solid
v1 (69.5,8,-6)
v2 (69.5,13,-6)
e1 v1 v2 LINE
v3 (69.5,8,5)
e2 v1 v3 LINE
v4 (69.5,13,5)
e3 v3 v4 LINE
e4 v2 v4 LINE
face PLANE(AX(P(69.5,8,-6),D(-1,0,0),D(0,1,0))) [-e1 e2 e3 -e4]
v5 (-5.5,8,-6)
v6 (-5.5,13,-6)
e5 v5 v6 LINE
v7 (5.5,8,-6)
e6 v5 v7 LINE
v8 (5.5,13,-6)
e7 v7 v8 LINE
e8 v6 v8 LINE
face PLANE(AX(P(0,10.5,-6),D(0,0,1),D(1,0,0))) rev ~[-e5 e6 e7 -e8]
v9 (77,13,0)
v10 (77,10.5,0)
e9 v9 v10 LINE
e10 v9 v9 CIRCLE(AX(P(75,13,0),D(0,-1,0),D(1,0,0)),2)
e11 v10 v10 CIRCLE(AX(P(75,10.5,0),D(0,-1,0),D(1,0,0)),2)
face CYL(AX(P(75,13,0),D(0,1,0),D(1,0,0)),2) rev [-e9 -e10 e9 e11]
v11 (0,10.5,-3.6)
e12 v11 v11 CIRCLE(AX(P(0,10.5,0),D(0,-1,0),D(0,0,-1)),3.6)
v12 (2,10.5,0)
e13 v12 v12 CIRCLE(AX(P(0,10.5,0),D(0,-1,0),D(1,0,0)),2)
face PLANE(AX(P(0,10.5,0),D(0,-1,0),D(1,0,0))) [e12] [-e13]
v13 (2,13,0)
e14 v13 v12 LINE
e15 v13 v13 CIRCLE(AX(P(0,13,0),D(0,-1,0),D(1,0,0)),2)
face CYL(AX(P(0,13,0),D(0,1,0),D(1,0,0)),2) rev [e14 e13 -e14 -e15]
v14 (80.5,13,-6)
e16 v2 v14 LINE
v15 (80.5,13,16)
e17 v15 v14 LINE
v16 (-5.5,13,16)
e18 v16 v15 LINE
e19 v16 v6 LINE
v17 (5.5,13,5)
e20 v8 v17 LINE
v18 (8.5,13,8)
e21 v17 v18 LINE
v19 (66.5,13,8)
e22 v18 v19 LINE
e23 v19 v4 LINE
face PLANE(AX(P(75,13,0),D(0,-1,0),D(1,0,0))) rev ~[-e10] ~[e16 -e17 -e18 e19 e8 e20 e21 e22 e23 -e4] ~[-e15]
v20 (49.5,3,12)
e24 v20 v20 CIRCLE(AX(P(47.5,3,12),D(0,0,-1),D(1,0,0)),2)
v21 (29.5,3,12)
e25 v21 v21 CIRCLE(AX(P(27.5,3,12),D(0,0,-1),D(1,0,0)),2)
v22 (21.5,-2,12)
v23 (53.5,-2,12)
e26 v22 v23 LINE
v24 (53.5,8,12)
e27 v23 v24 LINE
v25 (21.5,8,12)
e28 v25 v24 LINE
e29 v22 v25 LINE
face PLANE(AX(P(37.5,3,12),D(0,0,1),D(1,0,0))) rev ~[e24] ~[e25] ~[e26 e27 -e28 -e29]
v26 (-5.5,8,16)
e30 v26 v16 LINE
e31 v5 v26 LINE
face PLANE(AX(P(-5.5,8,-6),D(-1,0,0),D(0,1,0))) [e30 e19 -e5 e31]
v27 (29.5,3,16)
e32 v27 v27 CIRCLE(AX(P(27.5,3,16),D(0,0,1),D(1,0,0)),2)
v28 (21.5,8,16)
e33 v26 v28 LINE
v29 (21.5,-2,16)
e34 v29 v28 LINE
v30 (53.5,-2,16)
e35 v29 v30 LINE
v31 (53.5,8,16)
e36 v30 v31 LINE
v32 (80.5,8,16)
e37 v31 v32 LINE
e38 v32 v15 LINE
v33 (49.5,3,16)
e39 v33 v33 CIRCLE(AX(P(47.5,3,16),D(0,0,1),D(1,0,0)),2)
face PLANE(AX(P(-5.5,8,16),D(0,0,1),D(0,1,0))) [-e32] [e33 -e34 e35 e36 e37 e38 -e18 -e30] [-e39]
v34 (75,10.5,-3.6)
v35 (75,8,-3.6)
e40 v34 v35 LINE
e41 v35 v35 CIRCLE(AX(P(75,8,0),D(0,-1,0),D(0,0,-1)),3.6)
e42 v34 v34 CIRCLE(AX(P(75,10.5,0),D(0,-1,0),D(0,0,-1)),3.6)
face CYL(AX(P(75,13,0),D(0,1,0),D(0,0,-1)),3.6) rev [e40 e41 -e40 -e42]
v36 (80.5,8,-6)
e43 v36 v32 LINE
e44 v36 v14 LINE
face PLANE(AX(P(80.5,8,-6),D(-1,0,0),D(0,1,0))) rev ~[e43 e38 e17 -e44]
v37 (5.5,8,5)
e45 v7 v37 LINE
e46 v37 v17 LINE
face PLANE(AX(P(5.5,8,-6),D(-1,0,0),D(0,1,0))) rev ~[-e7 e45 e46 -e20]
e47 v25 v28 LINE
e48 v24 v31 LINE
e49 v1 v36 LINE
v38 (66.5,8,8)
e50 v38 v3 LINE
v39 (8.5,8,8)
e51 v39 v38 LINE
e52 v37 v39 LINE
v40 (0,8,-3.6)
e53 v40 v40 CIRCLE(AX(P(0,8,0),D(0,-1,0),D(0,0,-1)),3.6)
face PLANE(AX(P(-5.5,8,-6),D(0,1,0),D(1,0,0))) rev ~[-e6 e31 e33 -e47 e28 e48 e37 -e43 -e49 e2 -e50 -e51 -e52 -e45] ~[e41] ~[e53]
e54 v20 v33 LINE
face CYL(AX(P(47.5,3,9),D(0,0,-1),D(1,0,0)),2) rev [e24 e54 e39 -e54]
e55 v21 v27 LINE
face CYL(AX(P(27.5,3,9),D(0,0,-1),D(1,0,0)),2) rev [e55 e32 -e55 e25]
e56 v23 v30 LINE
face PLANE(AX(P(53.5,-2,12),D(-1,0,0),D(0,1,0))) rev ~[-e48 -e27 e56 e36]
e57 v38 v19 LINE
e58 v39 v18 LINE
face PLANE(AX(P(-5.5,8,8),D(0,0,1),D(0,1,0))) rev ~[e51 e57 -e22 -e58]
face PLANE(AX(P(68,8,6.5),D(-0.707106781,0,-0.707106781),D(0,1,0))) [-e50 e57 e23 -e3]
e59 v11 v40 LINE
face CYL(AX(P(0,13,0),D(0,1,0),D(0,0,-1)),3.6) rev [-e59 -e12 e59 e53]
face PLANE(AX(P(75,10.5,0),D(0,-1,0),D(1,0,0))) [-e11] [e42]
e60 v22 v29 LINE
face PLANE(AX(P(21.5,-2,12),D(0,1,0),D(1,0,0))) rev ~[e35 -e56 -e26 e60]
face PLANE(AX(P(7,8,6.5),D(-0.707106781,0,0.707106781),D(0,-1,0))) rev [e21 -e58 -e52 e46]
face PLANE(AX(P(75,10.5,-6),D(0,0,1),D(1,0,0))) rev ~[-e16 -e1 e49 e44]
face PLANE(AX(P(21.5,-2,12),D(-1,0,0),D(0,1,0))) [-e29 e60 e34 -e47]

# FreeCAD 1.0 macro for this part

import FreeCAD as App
import Part
import Sketcher
Q = App.Units.Quantity


def edges_at(feature, points):
    """Names of the edges that pass closest to the given points."""
    edges = feature.Shape.Edges
    near = lambda p: min(range(len(edges)), key=lambda i: edges[i].distToShape(Part.Vertex(*p))[0])
    return sorted({f"Edge{near(p) + 1}" for p in points})


def add_polygon(sketch, points):
    """Adds a closed chain of lines whose ends are joined by coincident constraints."""
    first, n = sketch.GeometryCount, len(points)
    for a, b in zip(points, points[1:] + points[:1]):
        sketch.addGeometry(Part.LineSegment(App.Vector(*a, 0), App.Vector(*b, 0)), False)
    for i in range(n):
        sketch.addConstraint(Sketcher.Constraint("Coincident", first + i, 2, first + (i + 1) % n, 1))

doc = App.newDocument("Part")
params = doc.addObject("Spreadsheet::Sheet", "Params")
for row, (alias, value) in enumerate([
    ("sketch1_width", "5 mm"),
    ("sketch1_height", "8 mm"),
    ("pad1_length", "86 mm"),
    ("sketch2_diameter", "7.2 mm"),
    ("pad2_length", "5 mm"),
    ("sketch3_width", "11 mm"),
    ("sketch3_height", "5 mm"),
    ("pad3_length", "14 mm"),
    ("sketch4_diameter", "7.2 mm"),
    ("pad4_length", "5 mm"),
    ("sketch5_width", "11 mm"),
    ("sketch5_height", "5 mm"),
    ("pad5_length", "14 mm"),
    ("sketch6_diameter", "4 mm"),
    ("sketch6_diameter2", "7.2 mm"),
    ("pad6_length", "2.5 mm"),
    ("sketch7_diameter", "4 mm"),
    ("sketch7_diameter2", "7.2 mm"),
    ("pad7_length", "2.5 mm"),
    ("sketch8_diameter", "4 mm"),
    ("pad8_length", "7 mm"),
    ("sketch9_diameter", "4 mm"),
    ("pad9_length", "7 mm"),
    ("sketch10_width", "32 mm"),
    ("sketch10_height", "10 mm"),
    ("pad10_length", "4 mm"),
    ("chamfer_size", "3 mm"),
], start=1):
    params.set(f"A{row}", alias)
    params.set(f"B{row}", "=" + value)
    params.setAlias(f"B{row}", alias)

body = doc.addObject("PartDesign::Body", "Body")

# Sketch on YZ plane
sketch1 = body.newObject("Sketcher::SketchObject", "Sketch")
sketch1.AttachmentSupport = (doc.getObject("YZ_Plane"), [""])
sketch1.MapMode = "FlatFace"
sketch1.AttachmentOffset = App.Placement(App.Vector(0, 0, -5.5), App.Rotation())
add_polygon(sketch1, [(8, 16), (8, 8), (13, 8), (13, 16)])  # lines 0-3
sketch1.addConstraint([
    Sketcher.Constraint("Vertical", 0),
    Sketcher.Constraint("Horizontal", 1),
    Sketcher.Constraint("Vertical", 2),
    Sketcher.Constraint("Horizontal", 3),
    Sketcher.Constraint("DistanceX", 1, 1, 1, 2, Q("5 mm")),
    Sketcher.Constraint("DistanceY", 0, 2, 0, 1, Q("8 mm")),
    Sketcher.Constraint("DistanceX", -1, 1, 0, 2, Q("8 mm")),
    Sketcher.Constraint("DistanceY", -1, 1, 0, 2, Q("8 mm")),
])
sketch1.setExpression("Constraints[8]", "Params.sketch1_width")
sketch1.setExpression("Constraints[9]", "Params.sketch1_height")
pad1 = body.newObject("PartDesign::Pad", "Pad")
pad1.Profile = sketch1
pad1.setExpression("Length", "Params.pad1_length")
body2 = doc.addObject("PartDesign::Body", "Body001")

# Sketch on XZ plane
sketch2 = body2.newObject("Sketcher::SketchObject", "Sketch001")
sketch2.AttachmentSupport = (doc.getObject("XZ_Plane001"), [""])
sketch2.MapMode = "FlatFace"
sketch2.AttachmentOffset = App.Placement(App.Vector(0, 0, 73), App.Rotation())
sketch2.addGeometry(Part.Circle(App.Vector(75, 0, 0), App.Vector(0, 0, 1), 3.6), False)
sketch2.addConstraint([
    Sketcher.Constraint("PointOnObject", 0, 3, -1),
    Sketcher.Constraint("Diameter", 0, Q("7.2 mm")),
    Sketcher.Constraint("DistanceX", -1, 1, 0, 3, Q("75 mm")),
])
sketch2.setExpression("Constraints[1]", "Params.sketch2_diameter")
pad2 = body2.newObject("PartDesign::Pad", "Pad001")
pad2.Profile = sketch2
pad2.setExpression("Length", "Params.pad2_length")
body3 = doc.addObject("PartDesign::Body", "Body002")

# Sketch on XY plane
sketch3 = body3.newObject("Sketcher::SketchObject", "Sketch002")
sketch3.AttachmentSupport = (doc.getObject("XY_Plane002"), [""])
sketch3.MapMode = "FlatFace"
sketch3.AttachmentOffset = App.Placement(App.Vector(0, 0, -6), App.Rotation())
add_polygon(sketch3, [(70, -73), (70, -78), (80, -78), (80, -73)])  # lines 0-3
sketch3.addConstraint([
    Sketcher.Constraint("Vertical", 0),
    Sketcher.Constraint("Horizontal", 1),
    Sketcher.Constraint("Vertical", 2),
    Sketcher.Constraint("Horizontal", 3),
    Sketcher.Constraint("DistanceX", 1, 1, 1, 2, Q("11 mm")),
    Sketcher.Constraint("DistanceY", 0, 2, 0, 1, Q("5 mm")),
    Sketcher.Constraint("DistanceY", 0, 2, -1, 1, Q("78 mm")),
    Sketcher.Constraint("DistanceX", -1, 1, 0, 2, Q("69.5 mm")),
])
sketch3.setExpression("Constraints[8]", "Params.sketch3_width")
sketch3.setExpression("Constraints[9]", "Params.sketch3_height")
pad3 = body3.newObject("PartDesign::Pad", "Pad002")
pad3.Profile = sketch3
pad3.setExpression("Length", "Params.pad3_length")
doc.recompute()

boolean = body3.newObject("PartDesign::Boolean", "Boolean")
boolean.Type = "Cut"
boolean.addObjects([body2])
body4 = doc.addObject("PartDesign::Body", "Body003")
doc.recompute()

body3.Placement = App.Placement(App.Vector(0, 86, 0), App.Rotation(App.Vector(0, 0, 1), 0))
boolean2 = body4.newObject("PartDesign::Boolean", "Boolean001")
boolean2.Type = "Fuse"
boolean2.addObjects([body3])
body5 = doc.addObject("PartDesign::Body", "Body004")

# Sketch on XZ plane
sketch4 = body5.newObject("Sketcher::SketchObject", "Sketch003")
sketch4.AttachmentSupport = (doc.getObject("XZ_Plane004"), [""])
sketch4.MapMode = "FlatFace"
sketch4.AttachmentOffset = App.Placement(App.Vector(0, 0, 73), App.Rotation())
sketch4.addGeometry(Part.Circle(App.Vector(0, 0, 0), App.Vector(0, 0, 1), 3.6), False)
sketch4.addConstraint([
    Sketcher.Constraint("Coincident", 0, 3, -1, 1),
    Sketcher.Constraint("Diameter", 0, Q("7.2 mm")),
])
sketch4.setExpression("Constraints[1]", "Params.sketch4_diameter")
pad4 = body5.newObject("PartDesign::Pad", "Pad003")
pad4.Profile = sketch4
pad4.setExpression("Length", "Params.pad4_length")
body6 = doc.addObject("PartDesign::Body", "Body005")

# Sketch on XY plane
sketch5 = body6.newObject("Sketcher::SketchObject", "Sketch004")
sketch5.AttachmentSupport = (doc.getObject("XY_Plane005"), [""])
sketch5.MapMode = "FlatFace"
sketch5.AttachmentOffset = App.Placement(App.Vector(0, 0, -6), App.Rotation())
add_polygon(sketch5, [(-6, -73), (-6, -78), (6, -78), (6, -73)])  # lines 0-3
sketch5.addConstraint([
    Sketcher.Constraint("Vertical", 0),
    Sketcher.Constraint("Horizontal", 1),
    Sketcher.Constraint("Vertical", 2),
    Sketcher.Constraint("Horizontal", 3),
    Sketcher.Constraint("DistanceX", 1, 1, 1, 2, Q("11 mm")),
    Sketcher.Constraint("DistanceY", 0, 2, 0, 1, Q("5 mm")),
    Sketcher.Constraint("DistanceY", 0, 2, -1, 1, Q("78 mm")),
    Sketcher.Constraint("DistanceX", 0, 2, -1, 1, Q("5.5 mm")),
])
sketch5.setExpression("Constraints[8]", "Params.sketch5_width")
sketch5.setExpression("Constraints[9]", "Params.sketch5_height")
pad5 = body6.newObject("PartDesign::Pad", "Pad004")
pad5.Profile = sketch5
pad5.setExpression("Length", "Params.pad5_length")
doc.recompute()

boolean3 = body6.newObject("PartDesign::Boolean", "Boolean002")
boolean3.Type = "Cut"
boolean3.addObjects([body5])
body7 = doc.addObject("PartDesign::Body", "Body006")
doc.recompute()

body6.Placement = App.Placement(App.Vector(0, 86, 0), App.Rotation(App.Vector(0, 0, 1), 0))
boolean4 = body7.newObject("PartDesign::Boolean", "Boolean003")
boolean4.Type = "Fuse"
boolean4.addObjects([body6])
body8 = doc.addObject("PartDesign::Body", "Body007")

# Sketch on XZ plane
sketch6 = body8.newObject("Sketcher::SketchObject", "Sketch005")
sketch6.AttachmentSupport = (doc.getObject("XZ_Plane007"), [""])
sketch6.MapMode = "FlatFace"
sketch6.AttachmentOffset = App.Placement(App.Vector(0, 0, -13), App.Rotation())
sketch6.addGeometry([
    Part.Circle(App.Vector(0, 0, 0), App.Vector(0, 0, 1), 3.6),
    Part.Circle(App.Vector(0, 0, 0), App.Vector(0, 0, 1), 2),
], False)
sketch6.addConstraint([
    Sketcher.Constraint("Coincident", 0, 3, -1, 1),
    Sketcher.Constraint("Coincident", 1, 3, -1, 1),
    Sketcher.Constraint("Diameter", 1, Q("4 mm")),
    Sketcher.Constraint("Diameter", 0, Q("7.2 mm")),
])
sketch6.setExpression("Constraints[2]", "Params.sketch6_diameter")
sketch6.setExpression("Constraints[3]", "Params.sketch6_diameter2")
pad6 = body8.newObject("PartDesign::Pad", "Pad005")
pad6.Profile = sketch6
pad6.setExpression("Length", "Params.pad6_length")
body9 = doc.addObject("PartDesign::Body", "Body008")

# Sketch on XZ plane
sketch7 = body9.newObject("Sketcher::SketchObject", "Sketch006")
sketch7.AttachmentSupport = (doc.getObject("XZ_Plane008"), [""])
sketch7.MapMode = "FlatFace"
sketch7.AttachmentOffset = App.Placement(App.Vector(0, 0, -13), App.Rotation())
sketch7.addGeometry([
    Part.Circle(App.Vector(75, 0, 0), App.Vector(0, 0, 1), 3.6),
    Part.Circle(App.Vector(75, 0, 0), App.Vector(0, 0, 1), 2),
], False)
sketch7.addConstraint([
    Sketcher.Constraint("Coincident", 1, 3, 0, 3),
    Sketcher.Constraint("PointOnObject", 0, 3, -1),
    Sketcher.Constraint("Diameter", 1, Q("4 mm")),
    Sketcher.Constraint("Diameter", 0, Q("7.2 mm")),
    Sketcher.Constraint("DistanceX", -1, 1, 0, 3, Q("75 mm")),
])
sketch7.setExpression("Constraints[2]", "Params.sketch7_diameter")
sketch7.setExpression("Constraints[3]", "Params.sketch7_diameter2")
pad7 = body9.newObject("PartDesign::Pad", "Pad006")
pad7.Profile = sketch7
pad7.setExpression("Length", "Params.pad7_length")
body10 = doc.addObject("PartDesign::Body", "Body009")

# Sketch on XY plane
sketch8 = body10.newObject("Sketcher::SketchObject", "Sketch007")
sketch8.AttachmentSupport = (doc.getObject("XY_Plane009"), [""])
sketch8.MapMode = "FlatFace"
sketch8.AttachmentOffset = App.Placement(App.Vector(0, 0, 7), App.Rotation())
sketch8.addGeometry(Part.Circle(App.Vector(28, -68, 0), App.Vector(0, 0, 1), 2), False)
sketch8.addConstraint([
    Sketcher.Constraint("Diameter", 0, Q("4 mm")),
    Sketcher.Constraint("DistanceX", -1, 1, 0, 3, Q("28 mm")),
    Sketcher.Constraint("DistanceY", 0, 3, -1, 1, Q("68 mm")),
])
sketch8.setExpression("Constraints[0]", "Params.sketch8_diameter")
pad8 = body10.newObject("PartDesign::Pad", "Pad007")
pad8.Profile = sketch8
pad8.setExpression("Length", "Params.pad8_length")
body11 = doc.addObject("PartDesign::Body", "Body010")
body11.AllowCompound = True

# Sketch on XY plane
sketch9 = body11.newObject("Sketcher::SketchObject", "Sketch008")
sketch9.AttachmentSupport = (doc.getObject("XY_Plane010"), [""])
sketch9.MapMode = "FlatFace"
sketch9.AttachmentOffset = App.Placement(App.Vector(0, 0, 7), App.Rotation())
sketch9.addGeometry(Part.Circle(App.Vector(48, -68, 0), App.Vector(0, 0, 1), 2), False)
sketch9.addConstraint([
    Sketcher.Constraint("Diameter", 0, Q("4 mm")),
    Sketcher.Constraint("DistanceX", -1, 1, 0, 3, Q("48 mm")),
    Sketcher.Constraint("DistanceY", 0, 3, -1, 1, Q("68 mm")),
])
sketch9.setExpression("Constraints[0]", "Params.sketch9_diameter")
pad9 = body11.newObject("PartDesign::Pad", "Pad008")
pad9.Profile = sketch9
pad9.setExpression("Length", "Params.pad9_length")
doc.recompute()

boolean5 = body11.newObject("PartDesign::Boolean", "Boolean004")
boolean5.Type = "Fuse"
boolean5.addObjects([body10])
body12 = doc.addObject("PartDesign::Body", "Body011")
body12.AllowCompound = True
doc.recompute()

body11.Placement = App.Placement(App.Vector(0, 0, 3), App.Rotation(App.Vector(0, 0, 1), 0))
boolean6 = body12.newObject("PartDesign::Boolean", "Boolean005")
boolean6.Type = "Fuse"
boolean6.addObjects([body11])
body13 = doc.addObject("PartDesign::Body", "Body012")

# Sketch on XY plane
sketch10 = body13.newObject("Sketcher::SketchObject", "Sketch009")
sketch10.AttachmentSupport = (doc.getObject("XY_Plane012"), [""])
sketch10.MapMode = "FlatFace"
sketch10.AttachmentOffset = App.Placement(App.Vector(0, 0, 13), App.Rotation())
add_polygon(sketch10, [(22, -63), (22, -73), (54, -73), (54, -63)])  # lines 0-3
sketch10.addConstraint([
    Sketcher.Constraint("Vertical", 0),
    Sketcher.Constraint("Horizontal", 1),
    Sketcher.Constraint("Vertical", 2),
    Sketcher.Constraint("Horizontal", 3),
    Sketcher.Constraint("DistanceX", 1, 1, 1, 2, Q("32 mm")),
    Sketcher.Constraint("DistanceY", 0, 2, 0, 1, Q("10 mm")),
    Sketcher.Constraint("DistanceX", -1, 1, 0, 2, Q("22 mm")),
    Sketcher.Constraint("DistanceY", 0, 2, -1, 1, Q("73 mm")),
])
sketch10.setExpression("Constraints[8]", "Params.sketch10_width")
sketch10.setExpression("Constraints[9]", "Params.sketch10_height")
pad10 = body13.newObject("PartDesign::Pad", "Pad009")
pad10.Profile = sketch10
pad10.setExpression("Length", "Params.pad10_length")
doc.recompute()

boolean7 = body13.newObject("PartDesign::Boolean", "Boolean006")
boolean7.Type = "Cut"
boolean7.addObjects([body12])
body14 = doc.addObject("PartDesign::Body", "Body013")
doc.recompute()

body13.Placement = App.Placement(App.Vector(-0.5, 71, -1), App.Rotation(App.Vector(0, 0, 1), 0))
boolean8 = body14.newObject("PartDesign::Boolean", "Boolean007")
boolean8.Type = "Fuse"
boolean8.addObjects([body13])
doc.recompute()

boolean9 = body14.newObject("PartDesign::Boolean", "Boolean008")
boolean9.Type = "Fuse"
boolean9.addObjects([body])
doc.recompute()

boolean10 = body14.newObject("PartDesign::Boolean", "Boolean009")
boolean10.Type = "Fuse"
boolean10.addObjects([body4])
doc.recompute()

boolean11 = body14.newObject("PartDesign::Boolean", "Boolean010")
boolean11.Type = "Fuse"
boolean11.addObjects([body7])
doc.recompute()

boolean12 = body14.newObject("PartDesign::Boolean", "Boolean011")
boolean12.Type = "Fuse"
boolean12.addObjects([body8])
doc.recompute()

boolean13 = body14.newObject("PartDesign::Boolean", "Boolean012")
boolean13.Type = "Fuse"
boolean13.addObjects([body9])
doc.recompute()

chamfer = body14.newObject("PartDesign::Chamfer", "Chamfer")
chamfer.Base = (boolean13, edges_at(boolean13, [(5.5, 10.5, 8), (69.5, 10.5, 8)]))
chamfer.setExpression("Size", "Params.chamfer_size")

doc.recompute()
